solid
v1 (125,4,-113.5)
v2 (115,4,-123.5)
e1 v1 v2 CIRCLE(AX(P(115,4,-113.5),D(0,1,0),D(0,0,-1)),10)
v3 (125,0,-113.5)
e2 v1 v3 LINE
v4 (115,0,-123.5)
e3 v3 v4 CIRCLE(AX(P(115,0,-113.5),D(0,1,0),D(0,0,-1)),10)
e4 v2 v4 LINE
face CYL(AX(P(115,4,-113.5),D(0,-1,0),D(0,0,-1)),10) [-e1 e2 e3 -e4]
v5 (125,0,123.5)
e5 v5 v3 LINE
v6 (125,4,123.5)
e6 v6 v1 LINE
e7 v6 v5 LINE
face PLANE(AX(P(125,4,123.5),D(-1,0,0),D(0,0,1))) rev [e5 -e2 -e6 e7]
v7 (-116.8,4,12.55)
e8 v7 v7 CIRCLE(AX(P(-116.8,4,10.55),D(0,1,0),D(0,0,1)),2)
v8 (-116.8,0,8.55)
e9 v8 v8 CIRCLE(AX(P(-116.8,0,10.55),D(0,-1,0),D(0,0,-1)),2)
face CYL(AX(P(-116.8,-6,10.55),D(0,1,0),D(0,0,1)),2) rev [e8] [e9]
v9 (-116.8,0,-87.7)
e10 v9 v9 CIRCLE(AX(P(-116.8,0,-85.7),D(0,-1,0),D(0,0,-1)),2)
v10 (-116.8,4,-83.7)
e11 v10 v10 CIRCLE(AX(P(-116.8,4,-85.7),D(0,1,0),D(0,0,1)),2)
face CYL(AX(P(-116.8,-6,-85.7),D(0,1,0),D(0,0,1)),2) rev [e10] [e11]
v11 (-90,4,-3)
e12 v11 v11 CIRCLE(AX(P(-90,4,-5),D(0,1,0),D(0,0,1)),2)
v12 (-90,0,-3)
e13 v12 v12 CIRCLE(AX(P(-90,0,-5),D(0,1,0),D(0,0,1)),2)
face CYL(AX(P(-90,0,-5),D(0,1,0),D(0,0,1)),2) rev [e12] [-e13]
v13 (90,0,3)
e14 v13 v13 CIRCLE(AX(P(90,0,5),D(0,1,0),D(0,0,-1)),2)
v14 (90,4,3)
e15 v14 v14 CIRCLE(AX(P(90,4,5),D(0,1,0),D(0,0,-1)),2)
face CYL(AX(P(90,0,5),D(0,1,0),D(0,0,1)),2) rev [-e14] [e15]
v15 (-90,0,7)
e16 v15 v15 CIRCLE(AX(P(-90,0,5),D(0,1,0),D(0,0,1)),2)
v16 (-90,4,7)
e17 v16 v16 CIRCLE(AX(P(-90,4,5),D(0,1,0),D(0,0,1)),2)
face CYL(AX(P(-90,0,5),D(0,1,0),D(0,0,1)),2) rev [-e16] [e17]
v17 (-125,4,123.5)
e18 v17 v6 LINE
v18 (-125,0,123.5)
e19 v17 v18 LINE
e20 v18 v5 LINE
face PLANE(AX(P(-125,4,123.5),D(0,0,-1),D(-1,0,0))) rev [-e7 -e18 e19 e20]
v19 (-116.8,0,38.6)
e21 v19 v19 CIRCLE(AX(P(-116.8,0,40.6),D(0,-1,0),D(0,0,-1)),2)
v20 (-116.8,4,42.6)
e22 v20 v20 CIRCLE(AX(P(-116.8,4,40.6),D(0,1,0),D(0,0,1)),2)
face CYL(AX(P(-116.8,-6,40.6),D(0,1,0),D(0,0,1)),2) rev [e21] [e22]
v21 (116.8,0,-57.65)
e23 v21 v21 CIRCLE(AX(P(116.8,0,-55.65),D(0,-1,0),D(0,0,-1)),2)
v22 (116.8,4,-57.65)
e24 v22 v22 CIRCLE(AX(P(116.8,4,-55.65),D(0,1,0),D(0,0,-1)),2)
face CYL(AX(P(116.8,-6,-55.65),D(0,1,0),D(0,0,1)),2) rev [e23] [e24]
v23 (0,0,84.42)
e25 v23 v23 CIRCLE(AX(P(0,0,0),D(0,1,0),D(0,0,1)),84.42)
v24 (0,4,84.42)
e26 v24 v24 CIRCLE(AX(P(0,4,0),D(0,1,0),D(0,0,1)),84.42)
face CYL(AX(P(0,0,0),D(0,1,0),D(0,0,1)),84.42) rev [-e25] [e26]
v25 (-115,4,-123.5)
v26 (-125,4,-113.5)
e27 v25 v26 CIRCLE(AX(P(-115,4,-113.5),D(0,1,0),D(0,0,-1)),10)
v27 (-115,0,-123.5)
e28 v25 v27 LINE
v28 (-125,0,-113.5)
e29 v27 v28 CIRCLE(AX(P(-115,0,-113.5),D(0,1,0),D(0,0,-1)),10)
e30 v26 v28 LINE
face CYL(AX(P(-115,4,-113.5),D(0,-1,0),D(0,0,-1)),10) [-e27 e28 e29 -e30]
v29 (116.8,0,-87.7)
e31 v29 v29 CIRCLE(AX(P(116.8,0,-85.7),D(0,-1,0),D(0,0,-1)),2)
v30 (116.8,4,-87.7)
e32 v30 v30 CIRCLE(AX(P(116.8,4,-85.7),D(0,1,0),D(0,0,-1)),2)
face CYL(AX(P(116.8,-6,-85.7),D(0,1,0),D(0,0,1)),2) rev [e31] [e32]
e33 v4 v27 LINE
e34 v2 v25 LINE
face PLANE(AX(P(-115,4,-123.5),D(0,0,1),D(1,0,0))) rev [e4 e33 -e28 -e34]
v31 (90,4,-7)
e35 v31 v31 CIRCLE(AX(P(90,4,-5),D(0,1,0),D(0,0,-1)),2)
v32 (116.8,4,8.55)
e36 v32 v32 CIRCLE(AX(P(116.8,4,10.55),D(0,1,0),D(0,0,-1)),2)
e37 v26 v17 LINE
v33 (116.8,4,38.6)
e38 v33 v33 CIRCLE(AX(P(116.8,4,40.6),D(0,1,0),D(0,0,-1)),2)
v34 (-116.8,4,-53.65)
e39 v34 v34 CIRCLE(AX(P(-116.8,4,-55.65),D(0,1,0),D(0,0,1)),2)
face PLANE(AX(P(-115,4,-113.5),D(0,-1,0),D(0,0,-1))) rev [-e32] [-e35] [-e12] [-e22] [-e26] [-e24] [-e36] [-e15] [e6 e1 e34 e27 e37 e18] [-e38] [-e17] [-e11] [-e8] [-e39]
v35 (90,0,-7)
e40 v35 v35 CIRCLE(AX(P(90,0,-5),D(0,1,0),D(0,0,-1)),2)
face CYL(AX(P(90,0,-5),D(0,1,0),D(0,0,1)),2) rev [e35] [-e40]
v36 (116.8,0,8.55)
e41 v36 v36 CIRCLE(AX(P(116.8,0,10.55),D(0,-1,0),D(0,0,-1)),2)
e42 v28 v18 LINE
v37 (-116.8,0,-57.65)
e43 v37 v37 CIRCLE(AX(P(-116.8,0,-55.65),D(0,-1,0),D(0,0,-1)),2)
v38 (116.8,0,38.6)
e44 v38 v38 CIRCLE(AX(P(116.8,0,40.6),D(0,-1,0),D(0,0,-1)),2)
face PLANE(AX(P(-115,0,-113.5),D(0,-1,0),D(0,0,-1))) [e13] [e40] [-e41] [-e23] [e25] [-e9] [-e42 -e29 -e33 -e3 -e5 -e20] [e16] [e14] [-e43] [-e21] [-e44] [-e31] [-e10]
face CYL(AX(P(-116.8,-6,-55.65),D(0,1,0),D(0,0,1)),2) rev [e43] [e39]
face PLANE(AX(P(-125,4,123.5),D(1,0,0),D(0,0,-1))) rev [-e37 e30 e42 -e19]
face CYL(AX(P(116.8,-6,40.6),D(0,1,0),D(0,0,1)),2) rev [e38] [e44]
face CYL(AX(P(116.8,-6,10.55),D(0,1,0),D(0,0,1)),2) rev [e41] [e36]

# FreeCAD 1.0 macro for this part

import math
import FreeCAD as App
import Part
import Sketcher

V = App.Vector

doc = App.newDocument("Part")
body = doc.addObject("PartDesign::Body", "Body")

sketch1 = body.newObject("Sketcher::SketchObject", "Sketch")
sketch1.AttachmentSupport = (doc.getObject("XZ_Plane"), [""])
sketch1.MapMode = "FlatFace"
sketch1.addGeometry(Part.LineSegment(V(-125, 124, 0), V(125, 124, 0)), False)
sketch1.addGeometry(Part.LineSegment(V(125, 124, 0), V(125, -114, 0)), False)
sketch1.addGeometry(Part.ArcOfCircle(Part.Circle(V(115, -114, 0), V(0, 0, 1), 10), math.radians(-90), math.radians(0)), False)
sketch1.addGeometry(Part.LineSegment(V(115, -124, 0), V(-115, -124, 0)), False)
sketch1.addGeometry(Part.ArcOfCircle(Part.Circle(V(-115, -114, 0), V(0, 0, 1), 10), math.radians(180), math.radians(270)), False)
sketch1.addGeometry(Part.LineSegment(V(-125, -114, 0), V(-125, 124, 0)), False)
sketch1.addConstraint(Sketcher.Constraint("Coincident", 0, 2, 1, 1))
sketch1.addConstraint(Sketcher.Constraint("Tangent", 1, 2, 2, 2))
sketch1.addConstraint(Sketcher.Constraint("Tangent", 2, 1, 3, 1))
sketch1.addConstraint(Sketcher.Constraint("Tangent", 3, 2, 4, 2))
sketch1.addConstraint(Sketcher.Constraint("Tangent", 4, 1, 5, 1))
sketch1.addConstraint(Sketcher.Constraint("Coincident", 5, 2, 0, 1))
sketch1.addConstraint(Sketcher.Constraint("Horizontal", 0))
sketch1.addConstraint(Sketcher.Constraint("Vertical", 1))
sketch1.addConstraint(Sketcher.Constraint("Horizontal", 3))
sketch1.addConstraint(Sketcher.Constraint("Vertical", 5))
sketch1.addConstraint(Sketcher.Constraint("Equal", 2, 4))
sketch1.addConstraint(Sketcher.Constraint("Radius", 2, 10.0))
sketch1.addConstraint(Sketcher.Constraint("DistanceX", 0, 1, 0, 2, 250.0))
sketch1.addConstraint(Sketcher.Constraint("DistanceY", 1, 2, 1, 1, 237.0))
sketch1.addConstraint(Sketcher.Constraint("DistanceX", -1, 1, 2, 3, 115.0))
sketch1.addConstraint(Sketcher.Constraint("DistanceY", 2, 3, -1, 1, 113.5))
pad1 = body.newObject("PartDesign::Pad", "Pad")
pad1.Profile = sketch1
pad1.Length = 4
pad1.Reversed = True

sketch2 = body.newObject("Sketcher::SketchObject", "Sketch001")
sketch2.AttachmentSupport = (doc.getObject("XZ_Plane"), [""])
sketch2.MapMode = "FlatFace"
sketch2.AttachmentOffset = App.Placement(V(0, 0, -4), App.Rotation())
sketch2.addGeometry(Part.Circle(V(0, 0, 0), V(0, 0, 1), 84.4), False)
sketch2.addGeometry(Part.Circle(V(-90, -5, 0), V(0, 0, 1), 2), False)
sketch2.addGeometry(Part.Circle(V(-90, 5, 0), V(0, 0, 1), 2), False)
sketch2.addGeometry(Part.Circle(V(90, 5, 0), V(0, 0, 1), 2), False)
sketch2.addGeometry(Part.Circle(V(90, -5, 0), V(0, 0, 1), 2), False)
sketch2.addConstraint(Sketcher.Constraint("Coincident", 0, 3, -1, 1))
sketch2.addConstraint(Sketcher.Constraint("Equal", 1, 2))
sketch2.addConstraint(Sketcher.Constraint("Equal", 2, 3))
sketch2.addConstraint(Sketcher.Constraint("Equal", 3, 4))
sketch2.addConstraint(Sketcher.Constraint("Symmetric", 1, 3, 3, 3, -1, 1))
sketch2.addConstraint(Sketcher.Constraint("Symmetric", 2, 3, 4, 3, -1, 1))
sketch2.addConstraint(Sketcher.Constraint("Symmetric", 2, 3, 3, 3, -2))
sketch2.addConstraint(Sketcher.Constraint("Diameter", 1, 4.0))
sketch2.addConstraint(Sketcher.Constraint("Diameter", 0, 168.84))
sketch2.addConstraint(Sketcher.Constraint("DistanceX", 1, 3, -1, 1, 90.0))
sketch2.addConstraint(Sketcher.Constraint("DistanceY", 1, 3, -1, 1, 5.0))
pocket1 = body.newObject("PartDesign::Pocket", "Pocket")
pocket1.Profile = sketch2
pocket1.Length = 4
pocket1.Reversed = True

sketch3 = body.newObject("Sketcher::SketchObject", "Sketch002")
sketch3.AttachmentSupport = (doc.getObject("XZ_Plane"), [""])
sketch3.MapMode = "FlatFace"
sketch3.AttachmentOffset = App.Placement(V(0, 0, -4), App.Rotation())
sketch3.addGeometry(Part.Circle(V(-116.8, -85.7, 0), V(0, 0, 1), 2), False)
sketch3.addGeometry(Part.Circle(V(-116.8, -55.6, 0), V(0, 0, 1), 2), False)
sketch3.addGeometry(Part.Circle(V(-116.8, 10.6, 0), V(0, 0, 1), 2), False)
sketch3.addGeometry(Part.Circle(V(-116.8, 40.6, 0), V(0, 0, 1), 2), False)
sketch3.addGeometry(Part.Circle(V(116.8, 40.6, 0), V(0, 0, 1), 2), False)
sketch3.addGeometry(Part.Circle(V(116.8, 10.6, 0), V(0, 0, 1), 2), False)
sketch3.addGeometry(Part.Circle(V(116.8, -55.6, 0), V(0, 0, 1), 2), False)
sketch3.addGeometry(Part.Circle(V(116.8, -85.7, 0), V(0, 0, 1), 2), False)
sketch3.addConstraint(Sketcher.Constraint("Equal", 0, 1))
sketch3.addConstraint(Sketcher.Constraint("Equal", 1, 2))
sketch3.addConstraint(Sketcher.Constraint("Equal", 2, 3))
sketch3.addConstraint(Sketcher.Constraint("Equal", 3, 4))
sketch3.addConstraint(Sketcher.Constraint("Equal", 4, 5))
sketch3.addConstraint(Sketcher.Constraint("Equal", 5, 6))
sketch3.addConstraint(Sketcher.Constraint("Equal", 6, 7))
sketch3.addConstraint(Sketcher.Constraint("Symmetric", 3, 3, 4, 3, -2))
sketch3.addConstraint(Sketcher.Constraint("Symmetric", 2, 3, 5, 3, -2))
sketch3.addConstraint(Sketcher.Constraint("Symmetric", 1, 3, 6, 3, -2))
sketch3.addConstraint(Sketcher.Constraint("Symmetric", 0, 3, 7, 3, -2))
sketch3.addConstraint(Sketcher.Constraint("Vertical", 0, 3, 1, 3))
sketch3.addConstraint(Sketcher.Constraint("Vertical", 1, 3, 2, 3))
sketch3.addConstraint(Sketcher.Constraint("Vertical", 2, 3, 3, 3))
sketch3.addConstraint(Sketcher.Constraint("Diameter", 0, 4.0))
sketch3.addConstraint(Sketcher.Constraint("DistanceX", 0, 3, -1, 1, 116.8))
sketch3.addConstraint(Sketcher.Constraint("DistanceY", 0, 3, -1, 1, 85.7))
sketch3.addConstraint(Sketcher.Constraint("DistanceY", -1, 1, 3, 3, 40.6))
sketch3.addConstraint(Sketcher.Constraint("DistanceY", 1, 3, 2, 3, 66.2))
sketch3.addConstraint(Sketcher.Constraint("DistanceY", 1, 3, -1, 1, 55.65))
pocket2 = body.newObject("PartDesign::Pocket", "Pocket001")
pocket2.Profile = sketch3
pocket2.Length = 10
pocket2.Reversed = True

doc.recompute()
